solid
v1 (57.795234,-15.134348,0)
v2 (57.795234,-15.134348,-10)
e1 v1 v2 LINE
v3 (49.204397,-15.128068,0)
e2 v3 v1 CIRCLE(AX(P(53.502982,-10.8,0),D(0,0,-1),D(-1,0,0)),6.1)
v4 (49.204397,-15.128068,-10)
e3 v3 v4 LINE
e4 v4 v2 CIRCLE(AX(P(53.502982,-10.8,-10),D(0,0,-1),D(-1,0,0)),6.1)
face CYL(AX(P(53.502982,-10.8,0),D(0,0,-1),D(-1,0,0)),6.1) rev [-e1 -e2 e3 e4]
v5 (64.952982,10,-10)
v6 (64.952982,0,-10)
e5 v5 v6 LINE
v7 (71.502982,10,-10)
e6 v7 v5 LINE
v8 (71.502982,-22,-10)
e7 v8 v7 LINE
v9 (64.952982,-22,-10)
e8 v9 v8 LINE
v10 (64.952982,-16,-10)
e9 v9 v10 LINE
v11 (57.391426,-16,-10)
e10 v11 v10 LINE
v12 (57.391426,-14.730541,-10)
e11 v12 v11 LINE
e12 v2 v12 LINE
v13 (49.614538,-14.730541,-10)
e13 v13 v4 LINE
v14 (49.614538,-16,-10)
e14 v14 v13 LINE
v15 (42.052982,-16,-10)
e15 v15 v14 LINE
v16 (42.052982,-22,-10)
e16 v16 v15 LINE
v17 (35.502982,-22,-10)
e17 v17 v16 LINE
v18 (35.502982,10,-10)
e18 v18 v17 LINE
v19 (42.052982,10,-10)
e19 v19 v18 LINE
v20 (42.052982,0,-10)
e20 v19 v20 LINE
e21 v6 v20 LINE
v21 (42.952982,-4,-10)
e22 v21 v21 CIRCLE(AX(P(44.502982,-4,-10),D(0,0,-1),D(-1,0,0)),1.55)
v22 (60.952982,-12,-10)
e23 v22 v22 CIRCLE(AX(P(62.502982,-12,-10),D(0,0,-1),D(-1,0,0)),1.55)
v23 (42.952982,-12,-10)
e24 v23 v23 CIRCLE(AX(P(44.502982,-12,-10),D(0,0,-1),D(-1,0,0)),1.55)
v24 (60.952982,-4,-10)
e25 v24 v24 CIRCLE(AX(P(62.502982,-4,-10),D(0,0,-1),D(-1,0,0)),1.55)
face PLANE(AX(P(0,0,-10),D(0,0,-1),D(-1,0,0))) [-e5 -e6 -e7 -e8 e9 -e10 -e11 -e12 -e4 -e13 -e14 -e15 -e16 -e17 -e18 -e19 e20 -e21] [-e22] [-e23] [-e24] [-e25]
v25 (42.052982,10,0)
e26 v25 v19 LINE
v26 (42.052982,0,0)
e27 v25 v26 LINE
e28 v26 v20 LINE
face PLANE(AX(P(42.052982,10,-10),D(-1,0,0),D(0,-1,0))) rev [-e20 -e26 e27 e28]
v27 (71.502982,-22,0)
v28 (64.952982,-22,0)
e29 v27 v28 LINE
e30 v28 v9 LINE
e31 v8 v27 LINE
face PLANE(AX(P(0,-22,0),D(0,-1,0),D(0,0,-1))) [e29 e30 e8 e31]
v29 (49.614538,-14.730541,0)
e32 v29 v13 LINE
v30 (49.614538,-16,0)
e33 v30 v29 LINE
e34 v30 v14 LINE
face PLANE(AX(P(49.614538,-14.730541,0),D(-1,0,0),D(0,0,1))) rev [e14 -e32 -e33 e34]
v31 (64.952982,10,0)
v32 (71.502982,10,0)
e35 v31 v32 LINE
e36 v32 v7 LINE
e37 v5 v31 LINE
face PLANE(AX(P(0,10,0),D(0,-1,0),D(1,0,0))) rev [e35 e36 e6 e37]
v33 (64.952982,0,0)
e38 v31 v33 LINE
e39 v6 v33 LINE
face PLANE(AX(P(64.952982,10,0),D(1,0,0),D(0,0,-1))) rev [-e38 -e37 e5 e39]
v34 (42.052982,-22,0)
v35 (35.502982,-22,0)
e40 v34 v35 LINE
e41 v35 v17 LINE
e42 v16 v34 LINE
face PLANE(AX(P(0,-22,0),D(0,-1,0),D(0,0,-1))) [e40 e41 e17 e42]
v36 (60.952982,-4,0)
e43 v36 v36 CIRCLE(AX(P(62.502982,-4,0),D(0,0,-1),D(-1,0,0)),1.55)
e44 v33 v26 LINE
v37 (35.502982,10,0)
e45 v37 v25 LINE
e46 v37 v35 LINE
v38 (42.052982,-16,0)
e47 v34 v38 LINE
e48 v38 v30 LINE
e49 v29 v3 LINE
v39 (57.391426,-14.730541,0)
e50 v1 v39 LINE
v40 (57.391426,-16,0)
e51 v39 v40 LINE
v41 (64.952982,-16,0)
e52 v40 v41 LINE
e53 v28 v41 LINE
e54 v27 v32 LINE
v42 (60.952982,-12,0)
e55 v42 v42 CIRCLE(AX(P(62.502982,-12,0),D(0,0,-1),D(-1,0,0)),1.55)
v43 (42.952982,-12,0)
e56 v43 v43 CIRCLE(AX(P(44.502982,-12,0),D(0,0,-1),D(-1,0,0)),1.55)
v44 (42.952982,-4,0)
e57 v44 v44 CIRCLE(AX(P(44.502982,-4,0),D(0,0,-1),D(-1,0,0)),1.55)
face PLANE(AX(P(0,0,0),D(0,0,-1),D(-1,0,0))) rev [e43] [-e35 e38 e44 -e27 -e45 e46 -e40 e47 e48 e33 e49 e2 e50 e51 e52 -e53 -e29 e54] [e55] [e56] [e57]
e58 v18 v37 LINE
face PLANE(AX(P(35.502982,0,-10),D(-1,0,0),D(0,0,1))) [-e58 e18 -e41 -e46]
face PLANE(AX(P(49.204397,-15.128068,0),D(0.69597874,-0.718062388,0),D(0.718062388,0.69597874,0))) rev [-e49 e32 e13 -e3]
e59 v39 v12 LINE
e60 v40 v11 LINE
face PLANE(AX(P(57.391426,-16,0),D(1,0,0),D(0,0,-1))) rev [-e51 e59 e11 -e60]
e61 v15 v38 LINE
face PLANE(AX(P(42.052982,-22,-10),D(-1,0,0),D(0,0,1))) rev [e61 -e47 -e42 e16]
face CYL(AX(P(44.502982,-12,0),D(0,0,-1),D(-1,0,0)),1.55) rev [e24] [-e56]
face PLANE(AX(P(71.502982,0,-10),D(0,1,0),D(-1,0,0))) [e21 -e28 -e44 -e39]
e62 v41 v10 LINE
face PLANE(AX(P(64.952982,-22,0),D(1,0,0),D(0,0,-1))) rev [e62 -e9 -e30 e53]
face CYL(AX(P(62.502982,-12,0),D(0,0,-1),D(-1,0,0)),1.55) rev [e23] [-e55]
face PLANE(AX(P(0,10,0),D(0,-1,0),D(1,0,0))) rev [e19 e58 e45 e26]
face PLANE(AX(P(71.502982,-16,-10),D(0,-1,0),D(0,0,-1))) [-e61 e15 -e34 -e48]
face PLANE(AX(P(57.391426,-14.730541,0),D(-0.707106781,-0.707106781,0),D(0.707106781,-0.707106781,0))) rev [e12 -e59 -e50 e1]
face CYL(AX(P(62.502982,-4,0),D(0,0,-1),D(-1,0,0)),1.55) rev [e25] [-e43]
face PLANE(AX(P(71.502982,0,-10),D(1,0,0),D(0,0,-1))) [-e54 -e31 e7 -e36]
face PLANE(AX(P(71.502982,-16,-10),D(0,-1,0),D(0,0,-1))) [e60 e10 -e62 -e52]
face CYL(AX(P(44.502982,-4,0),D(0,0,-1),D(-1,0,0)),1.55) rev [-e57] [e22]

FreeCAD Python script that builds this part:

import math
import FreeCAD as App
import Part
import Sketcher
Q = App.Units.Quantity

doc = App.newDocument("Part")
params = doc.addObject("Spreadsheet::Sheet", "Params")
for row, (alias, value) in enumerate([
    ("sketch1_width", "36 mm"),
    ("sketch1_height", "16 mm"),
    ("pad1_length", "10 mm"),
    ("sketch2_radius", "6.1 mm"),
    ("pocket1_length", "10 mm"),
    ("sketch3_diameter", "3.1 mm"),
    ("sketch4_height", "10 mm"),
    ("sketch4_width", "6.55 mm"),
    ("pad2_length", "6 mm"),
    ("sketch5_height", "10 mm"),
    ("sketch5_width", "6.55 mm"),
    ("pad3_length", "10 mm"),
], start=1):
    params.set(f"A{row}", alias)
    params.set(f"B{row}", "=" + value)
    params.setAlias(f"B{row}", alias)

body = doc.addObject("PartDesign::Body", "Body")

sketch1 = body.newObject("Sketcher::SketchObject", "Sketch")
sketch1.AttachmentSupport = (doc.getObject("XY_Plane"), [""])
sketch1.MapMode = "FlatFace"
sketch1.addGeometry(Part.LineSegment(App.Vector(36, 0, 0), App.Vector(36, -16, 0)), False)
sketch1.addGeometry(Part.LineSegment(App.Vector(36, -16, 0), App.Vector(72, -16, 0)), False)
sketch1.addGeometry(Part.LineSegment(App.Vector(72, -16, 0), App.Vector(72, 0, 0)), False)
sketch1.addGeometry(Part.LineSegment(App.Vector(72, 0, 0), App.Vector(36, 0, 0)), False)
sketch1.addConstraint(Sketcher.Constraint("Coincident", 0, 2, 1, 1))
sketch1.addConstraint(Sketcher.Constraint("Coincident", 1, 2, 2, 1))
sketch1.addConstraint(Sketcher.Constraint("Coincident", 2, 2, 3, 1))
sketch1.addConstraint(Sketcher.Constraint("Coincident", 3, 2, 0, 1))
sketch1.addConstraint(Sketcher.Constraint("Vertical", 0))
sketch1.addConstraint(Sketcher.Constraint("Horizontal", 1))
sketch1.addConstraint(Sketcher.Constraint("Vertical", 2))
sketch1.addConstraint(Sketcher.Constraint("Horizontal", 3))
sketch1.addConstraint(Sketcher.Constraint("PointOnObject", 2, 2, -1))
sketch1.addConstraint(Sketcher.Constraint("DistanceX", 1, 1, 1, 2, Q("36 mm")))
sketch1.addConstraint(Sketcher.Constraint("DistanceY", 0, 2, 0, 1, Q("16 mm")))
sketch1.addConstraint(Sketcher.Constraint("DistanceX", -1, 1, 0, 2, Q("35.502982 mm")))
sketch1.setExpression("Constraints[9]", "Params.sketch1_width")
sketch1.setExpression("Constraints[10]", "Params.sketch1_height")
pad1 = body.newObject("PartDesign::Pad", "Pad")
pad1.Profile = sketch1
pad1.setExpression("Length", "Params.pad1_length")
pad1.Reversed = True

sketch2 = body.newObject("Sketcher::SketchObject", "Sketch001")
sketch2.AttachmentSupport = (doc.getObject("XY_Plane"), [""])
sketch2.MapMode = "FlatFace"
sketch2.AttachmentOffset = App.Placement(App.Vector(0, 0, -10), App.Rotation())
sketch2.addGeometry(Part.LineSegment(App.Vector(57.4, -16, 0), App.Vector(49.6, -16, 0)), False)
sketch2.addGeometry(Part.LineSegment(App.Vector(49.6, -16, 0), App.Vector(49.6, -14.7, 0)), False)
sketch2.addGeometry(Part.LineSegment(App.Vector(49.6, -14.7, 0), App.Vector(49.2, -15.1, 0)), False)
sketch2.addGeometry(Part.ArcOfCircle(Part.Circle(App.Vector(53.5, -10.8, 0), App.Vector(0, 0, 1), 6.1), math.radians(-45), math.radians(225)), False)
sketch2.addGeometry(Part.LineSegment(App.Vector(57.8, -15.1, 0), App.Vector(57.4, -14.7, 0)), False)
sketch2.addGeometry(Part.LineSegment(App.Vector(57.4, -14.7, 0), App.Vector(57.4, -16, 0)), False)
sketch2.addConstraint(Sketcher.Constraint("Coincident", 0, 2, 1, 1))
sketch2.addConstraint(Sketcher.Constraint("Coincident", 1, 2, 2, 1))
sketch2.addConstraint(Sketcher.Constraint("Coincident", 2, 2, 3, 2))
sketch2.addConstraint(Sketcher.Constraint("Coincident", 3, 1, 4, 1))
sketch2.addConstraint(Sketcher.Constraint("Coincident", 4, 2, 5, 1))
sketch2.addConstraint(Sketcher.Constraint("Coincident", 5, 2, 0, 1))
sketch2.addConstraint(Sketcher.Constraint("Horizontal", 0))
sketch2.addConstraint(Sketcher.Constraint("Vertical", 1))
sketch2.addConstraint(Sketcher.Constraint("Vertical", 5))
sketch2.addConstraint(Sketcher.Constraint("Horizontal", 1, 2, 4, 2))
sketch2.addConstraint(Sketcher.Constraint("Radius", 3, Q("6.1 mm")))
sketch2.addConstraint(Sketcher.Constraint("Angle", 4, Q("135 deg")))
sketch2.addConstraint(Sketcher.Constraint("DistanceY", 0, 2, -1, 1, Q("16 mm")))
sketch2.addConstraint(Sketcher.Constraint("DistanceY", 3, 3, -1, 1, Q("10.8 mm")))
sketch2.addConstraint(Sketcher.Constraint("DistanceX", 0, 2, 0, 1, Q("7.776889 mm")))
sketch2.addConstraint(Sketcher.Constraint("DistanceY", 1, 1, 1, 2, Q("1.269459 mm")))
sketch2.addConstraint(Sketcher.Constraint("Distance", 4, Q("0.57107 mm")))
sketch2.addConstraint(Sketcher.Constraint("DistanceX", 2, 2, 1, 2, Q("0.41014 mm")))
sketch2.addConstraint(Sketcher.Constraint("DistanceX", -1, 1, 3, 3, Q("53.502982 mm")))
sketch2.setExpression("Constraints[10]", "Params.sketch2_radius")
pocket1 = body.newObject("PartDesign::Pocket", "Pocket")
pocket1.Profile = sketch2
pocket1.setExpression("Length", "Params.pocket1_length")
pocket1.Reversed = True

sketch3 = body.newObject("Sketcher::SketchObject", "Sketch002")
sketch3.AttachmentSupport = (doc.getObject("XY_Plane"), [""])
sketch3.MapMode = "FlatFace"
sketch3.AttachmentOffset = App.Placement(App.Vector(0, 0, -10), App.Rotation())
sketch3.addGeometry(Part.Circle(App.Vector(44.5, -12, 0), App.Vector(0, 0, 1), 1.6), False)
sketch3.addGeometry(Part.Circle(App.Vector(44.5, -4, 0), App.Vector(0, 0, 1), 1.6), False)
sketch3.addGeometry(Part.Circle(App.Vector(62.5, -12, 0), App.Vector(0, 0, 1), 1.6), False)
sketch3.addGeometry(Part.Circle(App.Vector(62.5, -4, 0), App.Vector(0, 0, 1), 1.6), False)
sketch3.addConstraint(Sketcher.Constraint("Equal", 0, 1))
sketch3.addConstraint(Sketcher.Constraint("Equal", 1, 2))
sketch3.addConstraint(Sketcher.Constraint("Equal", 2, 3))
sketch3.addConstraint(Sketcher.Constraint("Horizontal", 0, 3, 2, 3))
sketch3.addConstraint(Sketcher.Constraint("Horizontal", 1, 3, 3, 3))
sketch3.addConstraint(Sketcher.Constraint("Vertical", 0, 3, 1, 3))
sketch3.addConstraint(Sketcher.Constraint("Vertical", 2, 3, 3, 3))
sketch3.addConstraint(Sketcher.Constraint("Diameter", 0, Q("3.1 mm")))
sketch3.addConstraint(Sketcher.Constraint("DistanceY", 0, 3, -1, 1, Q("12 mm")))
sketch3.addConstraint(Sketcher.Constraint("DistanceY", 1, 3, -1, 1, Q("4 mm")))
sketch3.addConstraint(Sketcher.Constraint("DistanceX", 0, 3, 2, 3, Q("18 mm")))
sketch3.addConstraint(Sketcher.Constraint("DistanceX", -1, 1, 0, 3, Q("44.502982 mm")))
sketch3.setExpression("Constraints[7]", "Params.sketch3_diameter")
pocket2 = body.newObject("PartDesign::Pocket", "Pocket001")
pocket2.Profile = sketch3
pocket2.Type = "ThroughAll"
pocket2.Reversed = True

sketch4 = body.newObject("Sketcher::SketchObject", "Sketch003")
sketch4.AttachmentSupport = (doc.getObject("XZ_Plane"), [""])
sketch4.MapMode = "FlatFace"
sketch4.AttachmentOffset = App.Placement(App.Vector(0, 0, 16), App.Rotation())
sketch4.addGeometry(Part.LineSegment(App.Vector(65, 0, 0), App.Vector(65, -10, 0)), False)
sketch4.addGeometry(Part.LineSegment(App.Vector(65, -10, 0), App.Vector(72, -10, 0)), False)
sketch4.addGeometry(Part.LineSegment(App.Vector(72, -10, 0), App.Vector(72, 0, 0)), False)
sketch4.addGeometry(Part.LineSegment(App.Vector(72, 0, 0), App.Vector(65, 0, 0)), False)
sketch4.addGeometry(Part.LineSegment(App.Vector(36, 0, 0), App.Vector(36, -10, 0)), False)
sketch4.addGeometry(Part.LineSegment(App.Vector(36, -10, 0), App.Vector(42, -10, 0)), False)
sketch4.addGeometry(Part.LineSegment(App.Vector(42, -10, 0), App.Vector(42, 0, 0)), False)
sketch4.addGeometry(Part.LineSegment(App.Vector(42, 0, 0), App.Vector(36, 0, 0)), False)
sketch4.addConstraint(Sketcher.Constraint("Coincident", 0, 2, 1, 1))
sketch4.addConstraint(Sketcher.Constraint("Coincident", 1, 2, 2, 1))
sketch4.addConstraint(Sketcher.Constraint("Coincident", 2, 2, 3, 1))
sketch4.addConstraint(Sketcher.Constraint("Coincident", 3, 2, 0, 1))
sketch4.addConstraint(Sketcher.Constraint("Coincident", 4, 2, 5, 1))
sketch4.addConstraint(Sketcher.Constraint("Coincident", 5, 2, 6, 1))
sketch4.addConstraint(Sketcher.Constraint("Coincident", 6, 2, 7, 1))
sketch4.addConstraint(Sketcher.Constraint("Coincident", 7, 2, 4, 1))
sketch4.addConstraint(Sketcher.Constraint("Vertical", 0))
sketch4.addConstraint(Sketcher.Constraint("Horizontal", 1))
sketch4.addConstraint(Sketcher.Constraint("Vertical", 2))
sketch4.addConstraint(Sketcher.Constraint("Horizontal", 3))
sketch4.addConstraint(Sketcher.Constraint("Vertical", 4))
sketch4.addConstraint(Sketcher.Constraint("Horizontal", 5))
sketch4.addConstraint(Sketcher.Constraint("Vertical", 6))
sketch4.addConstraint(Sketcher.Constraint("Horizontal", 7))
sketch4.addConstraint(Sketcher.Constraint("PointOnObject", 2, 2, -1))
sketch4.addConstraint(Sketcher.Constraint("PointOnObject", 6, 2, -1))
sketch4.addConstraint(Sketcher.Constraint("Horizontal", 1, 2, 4, 2))
sketch4.addConstraint(Sketcher.Constraint("Equal", 3, 5))
sketch4.addConstraint(Sketcher.Constraint("DistanceY", 0, 2, 0, 1, Q("10 mm")))
sketch4.addConstraint(Sketcher.Constraint("DistanceX", 4, 2, 1, 2, Q("36 mm")))
sketch4.addConstraint(Sketcher.Constraint("DistanceX", 1, 1, 1, 2, Q("6.55 mm")))
sketch4.addConstraint(Sketcher.Constraint("DistanceX", -1, 1, 0, 2, Q("64.952982 mm")))
sketch4.setExpression("Constraints[20]", "Params.sketch4_height")
sketch4.setExpression("Constraints[22]", "Params.sketch4_width")
pad2 = body.newObject("PartDesign::Pad", "Pad001")
pad2.Profile = sketch4
pad2.setExpression("Length", "Params.pad2_length")

sketch5 = body.newObject("Sketcher::SketchObject", "Sketch004")
sketch5.AttachmentSupport = (doc.getObject("XZ_Plane"), [""])
sketch5.MapMode = "FlatFace"
sketch5.addGeometry(Part.LineSegment(App.Vector(65, -10, 0), App.Vector(65, 0, 0)), False)
sketch5.addGeometry(Part.LineSegment(App.Vector(65, 0, 0), App.Vector(72, 0, 0)), False)
sketch5.addGeometry(Part.LineSegment(App.Vector(72, 0, 0), App.Vector(72, -10, 0)), False)
sketch5.addGeometry(Part.LineSegment(App.Vector(72, -10, 0), App.Vector(65, -10, 0)), False)
sketch5.addGeometry(Part.LineSegment(App.Vector(36, -10, 0), App.Vector(36, 0, 0)), False)
sketch5.addGeometry(Part.LineSegment(App.Vector(36, 0, 0), App.Vector(42, 0, 0)), False)
sketch5.addGeometry(Part.LineSegment(App.Vector(42, 0, 0), App.Vector(42, -10, 0)), False)
sketch5.addGeometry(Part.LineSegment(App.Vector(42, -10, 0), App.Vector(36, -10, 0)), False)
sketch5.addConstraint(Sketcher.Constraint("Coincident", 0, 2, 1, 1))
sketch5.addConstraint(Sketcher.Constraint("Coincident", 1, 2, 2, 1))
sketch5.addConstraint(Sketcher.Constraint("Coincident", 2, 2, 3, 1))
sketch5.addConstraint(Sketcher.Constraint("Coincident", 3, 2, 0, 1))
sketch5.addConstraint(Sketcher.Constraint("Coincident", 4, 2, 5, 1))
sketch5.addConstraint(Sketcher.Constraint("Coincident", 5, 2, 6, 1))
sketch5.addConstraint(Sketcher.Constraint("Coincident", 6, 2, 7, 1))
sketch5.addConstraint(Sketcher.Constraint("Coincident", 7, 2, 4, 1))
sketch5.addConstraint(Sketcher.Constraint("Vertical", 0))
sketch5.addConstraint(Sketcher.Constraint("Horizontal", 1))
sketch5.addConstraint(Sketcher.Constraint("Vertical", 2))
sketch5.addConstraint(Sketcher.Constraint("Horizontal", 3))
sketch5.addConstraint(Sketcher.Constraint("Vertical", 4))
sketch5.addConstraint(Sketcher.Constraint("Horizontal", 5))
sketch5.addConstraint(Sketcher.Constraint("Vertical", 6))
sketch5.addConstraint(Sketcher.Constraint("Horizontal", 7))
sketch5.addConstraint(Sketcher.Constraint("PointOnObject", 0, 2, -1))
sketch5.addConstraint(Sketcher.Constraint("PointOnObject", 4, 2, -1))
sketch5.addConstraint(Sketcher.Constraint("Horizontal", 3, 2, 6, 2))
sketch5.addConstraint(Sketcher.Constraint("Equal", 3, 5))
sketch5.addConstraint(Sketcher.Constraint("DistanceY", 0, 1, 0, 2, Q("10 mm")))
sketch5.addConstraint(Sketcher.Constraint("DistanceX", 4, 2, 1, 2, Q("36 mm")))
sketch5.addConstraint(Sketcher.Constraint("DistanceX", 1, 1, 1, 2, Q("6.55 mm")))
sketch5.addConstraint(Sketcher.Constraint("DistanceX", -1, 1, 0, 2, Q("64.952982 mm")))
sketch5.setExpression("Constraints[20]", "Params.sketch5_height")
sketch5.setExpression("Constraints[22]", "Params.sketch5_width")
pad3 = body.newObject("PartDesign::Pad", "Pad002")
pad3.Profile = sketch5
pad3.setExpression("Length", "Params.pad3_length")
pad3.Reversed = True

doc.recompute()
